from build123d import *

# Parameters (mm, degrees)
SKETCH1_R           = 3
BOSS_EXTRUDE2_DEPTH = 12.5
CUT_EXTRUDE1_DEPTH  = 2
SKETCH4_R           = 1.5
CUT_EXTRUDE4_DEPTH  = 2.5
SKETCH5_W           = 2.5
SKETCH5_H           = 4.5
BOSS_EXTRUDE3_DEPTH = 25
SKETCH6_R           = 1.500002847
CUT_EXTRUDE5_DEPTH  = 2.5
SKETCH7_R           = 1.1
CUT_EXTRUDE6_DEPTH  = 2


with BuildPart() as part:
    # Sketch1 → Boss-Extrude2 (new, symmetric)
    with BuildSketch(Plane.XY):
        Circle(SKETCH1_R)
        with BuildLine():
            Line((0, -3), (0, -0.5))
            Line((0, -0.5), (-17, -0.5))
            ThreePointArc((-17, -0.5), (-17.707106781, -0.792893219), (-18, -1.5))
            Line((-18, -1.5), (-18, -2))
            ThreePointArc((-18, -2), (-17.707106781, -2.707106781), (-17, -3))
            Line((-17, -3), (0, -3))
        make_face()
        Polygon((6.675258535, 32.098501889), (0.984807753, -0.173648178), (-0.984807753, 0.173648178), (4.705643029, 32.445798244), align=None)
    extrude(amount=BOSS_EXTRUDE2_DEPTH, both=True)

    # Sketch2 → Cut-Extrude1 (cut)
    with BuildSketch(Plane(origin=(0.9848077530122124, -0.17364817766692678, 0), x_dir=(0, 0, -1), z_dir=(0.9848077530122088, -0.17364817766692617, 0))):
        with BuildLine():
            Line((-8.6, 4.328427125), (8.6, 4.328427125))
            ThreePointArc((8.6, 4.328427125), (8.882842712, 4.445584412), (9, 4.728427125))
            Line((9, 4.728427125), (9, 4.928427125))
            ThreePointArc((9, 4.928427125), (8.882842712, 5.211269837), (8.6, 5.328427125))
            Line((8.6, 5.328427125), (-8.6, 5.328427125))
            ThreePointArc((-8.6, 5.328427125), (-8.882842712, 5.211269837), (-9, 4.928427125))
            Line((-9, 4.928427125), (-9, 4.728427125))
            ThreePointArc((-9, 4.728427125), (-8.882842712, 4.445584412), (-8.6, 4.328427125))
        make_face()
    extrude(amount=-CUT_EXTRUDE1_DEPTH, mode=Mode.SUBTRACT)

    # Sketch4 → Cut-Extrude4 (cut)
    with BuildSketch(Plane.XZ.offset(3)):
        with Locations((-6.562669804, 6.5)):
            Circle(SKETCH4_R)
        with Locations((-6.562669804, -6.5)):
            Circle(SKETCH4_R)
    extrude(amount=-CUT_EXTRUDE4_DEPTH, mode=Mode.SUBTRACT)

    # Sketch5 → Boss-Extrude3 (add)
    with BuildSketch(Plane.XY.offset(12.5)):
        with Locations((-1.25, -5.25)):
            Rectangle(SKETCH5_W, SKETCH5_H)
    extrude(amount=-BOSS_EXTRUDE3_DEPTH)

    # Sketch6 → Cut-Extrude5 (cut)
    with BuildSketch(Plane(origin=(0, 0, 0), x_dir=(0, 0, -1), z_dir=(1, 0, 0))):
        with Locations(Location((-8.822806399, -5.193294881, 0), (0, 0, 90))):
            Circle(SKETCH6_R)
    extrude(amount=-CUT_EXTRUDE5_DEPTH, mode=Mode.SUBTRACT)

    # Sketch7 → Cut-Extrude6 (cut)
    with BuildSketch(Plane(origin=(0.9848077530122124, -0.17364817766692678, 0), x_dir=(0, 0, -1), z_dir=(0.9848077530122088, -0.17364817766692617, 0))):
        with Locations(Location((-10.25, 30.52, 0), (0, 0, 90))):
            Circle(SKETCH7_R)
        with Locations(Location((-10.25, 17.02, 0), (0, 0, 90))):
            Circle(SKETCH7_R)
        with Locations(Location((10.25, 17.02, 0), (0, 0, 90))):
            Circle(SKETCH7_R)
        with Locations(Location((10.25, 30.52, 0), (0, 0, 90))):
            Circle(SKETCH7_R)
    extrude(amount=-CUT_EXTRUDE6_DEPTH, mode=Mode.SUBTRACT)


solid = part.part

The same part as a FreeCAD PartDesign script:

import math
import FreeCAD as App
import Part
import Sketcher
Q = App.Units.Quantity

doc = App.newDocument("Part")
body = doc.addObject("PartDesign::Body", "Body")

# Sketch on XY plane
sketch1 = body.newObject("Sketcher::SketchObject", "Sketch")
sketch1.AttachmentSupport = (doc.getObject("XY_Plane"), [""])
sketch1.MapMode = "FlatFace"
sketch1.addGeometry(Part.ArcOfCircle(Part.Circle(App.Vector(0, 0, 0), App.Vector(0, 0, 1), 3), math.radians(99), math.radians(190)), False)
sketch1.addGeometry(Part.LineSegment(App.Vector(-3, -0.5, 0), App.Vector(-17, -0.5, 0)), False)
sketch1.addGeometry(Part.ArcOfCircle(Part.Circle(App.Vector(-17, -1.5, 0), App.Vector(0, 0, 1), 1), math.radians(90), math.radians(180)), False)
sketch1.addGeometry(Part.LineSegment(App.Vector(-18, -1.5, 0), App.Vector(-18, -2, 0)), False)
sketch1.addGeometry(Part.ArcOfCircle(Part.Circle(App.Vector(-17, -2, 0), App.Vector(0, 0, 1), 1), math.radians(-180), math.radians(-90)), False)
sketch1.addGeometry(Part.LineSegment(App.Vector(-17, -3, 0), App.Vector(0, -3, 0)), False)
sketch1.addGeometry(Part.ArcOfCircle(Part.Circle(App.Vector(0, 0, 0), App.Vector(0, 0, 1), 3), math.radians(-90), math.radians(61)), False)
sketch1.addGeometry(Part.LineSegment(App.Vector(1.5, 2.6, 0), App.Vector(6.7, 32.1, 0)), False)
sketch1.addGeometry(Part.LineSegment(App.Vector(6.7, 32.1, 0), App.Vector(4.7, 32.4, 0)), False)
sketch1.addGeometry(Part.LineSegment(App.Vector(4.7, 32.4, 0), App.Vector(-0.5, 3, 0)), False)
sketch1.addConstraint(Sketcher.Constraint("Coincident", 0, 2, 1, 1))
sketch1.addConstraint(Sketcher.Constraint("Tangent", 1, 2, 2, 1))
sketch1.addConstraint(Sketcher.Constraint("Tangent", 2, 2, 3, 1))
sketch1.addConstraint(Sketcher.Constraint("Tangent", 3, 2, 4, 1))
sketch1.addConstraint(Sketcher.Constraint("Tangent", 4, 2, 5, 1))
sketch1.addConstraint(Sketcher.Constraint("Tangent", 5, 2, 6, 1))
sketch1.addConstraint(Sketcher.Constraint("Coincident", 6, 2, 7, 1))
sketch1.addConstraint(Sketcher.Constraint("Coincident", 7, 2, 8, 1))
sketch1.addConstraint(Sketcher.Constraint("Coincident", 8, 2, 9, 1))
sketch1.addConstraint(Sketcher.Constraint("Coincident", 9, 2, 0, 1))
sketch1.addConstraint(Sketcher.Constraint("Horizontal", 1))
sketch1.addConstraint(Sketcher.Constraint("Vertical", 3))
sketch1.addConstraint(Sketcher.Constraint("Horizontal", 5))
sketch1.addConstraint(Sketcher.Constraint("Coincident", 0, 3, -1, 1))
sketch1.addConstraint(Sketcher.Constraint("Coincident", 6, 3, -1, 1))
sketch1.addConstraint(Sketcher.Constraint("Equal", 2, 4))
sketch1.addConstraint(Sketcher.Constraint("Equal", 0, 6))
sketch1.addConstraint(Sketcher.Constraint("Perpendicular", 7, 8))
sketch1.addConstraint(Sketcher.Constraint("Perpendicular", 8, 9))
sketch1.addConstraint(Sketcher.Constraint("Equal", 7, 9))
sketch1.addConstraint(Sketcher.Constraint("Radius", 0, 3.0))
sketch1.addConstraint(Sketcher.Constraint("Radius", 2, 1.0))
sketch1.addConstraint(Sketcher.Constraint("DistanceX", 5, 1, 5, 2, 17.0))
sketch1.addConstraint(Sketcher.Constraint("Angle", 7, Q("80 deg")))
sketch1.addConstraint(Sketcher.Constraint("Distance", 8, 2.0))
sketch1.addConstraint(Sketcher.Constraint("DistanceY", 3, 2, 3, 1, 0.5))
sketch1.addConstraint(Sketcher.Constraint("DistanceY", -1, 1, 7, 2, 32.098502))
pad1 = body.newObject("PartDesign::Pad", "Pad")
pad1.Profile = sketch1
pad1.Length = 25
pad1.Midplane = True

# Sketch on an angled plane
sketch2 = body.newObject("Sketcher::SketchObject", "Sketch001")
sketch2.Placement = App.Placement(App.Vector(0.984808, -0.173648, 0), App.Rotation(App.Vector(0, 0, -1), App.Vector(0.173648178, 0.984807753, 0), App.Vector(0.984807753, -0.173648178, 0), "ZXY"))
sketch2.addGeometry(Part.LineSegment(App.Vector(-8.6, 4.33, 0), App.Vector(8.6, 4.33, 0)), False)
sketch2.addGeometry(Part.ArcOfCircle(Part.Circle(App.Vector(8.6, 4.73, 0), App.Vector(0, 0, 1), 0.4), math.radians(-90), math.radians(0)), False)
sketch2.addGeometry(Part.LineSegment(App.Vector(9, 4.73, 0), App.Vector(9, 4.93, 0)), False)
sketch2.addGeometry(Part.ArcOfCircle(Part.Circle(App.Vector(8.6, 4.93, 0), App.Vector(0, 0, 1), 0.4), math.radians(0), math.radians(90)), False)
sketch2.addGeometry(Part.LineSegment(App.Vector(8.6, 5.33, 0), App.Vector(-8.6, 5.33, 0)), False)
sketch2.addGeometry(Part.ArcOfCircle(Part.Circle(App.Vector(-8.6, 4.93, 0), App.Vector(0, 0, 1), 0.4), math.radians(90), math.radians(180)), False)
sketch2.addGeometry(Part.LineSegment(App.Vector(-9, 4.93, 0), App.Vector(-9, 4.73, 0)), False)
sketch2.addGeometry(Part.ArcOfCircle(Part.Circle(App.Vector(-8.6, 4.73, 0), App.Vector(0, 0, 1), 0.4), math.radians(180), math.radians(270)), False)
sketch2.addConstraint(Sketcher.Constraint("Tangent", 0, 2, 1, 1))
sketch2.addConstraint(Sketcher.Constraint("Tangent", 1, 2, 2, 1))
sketch2.addConstraint(Sketcher.Constraint("Tangent", 2, 2, 3, 1))
sketch2.addConstraint(Sketcher.Constraint("Tangent", 3, 2, 4, 1))
sketch2.addConstraint(Sketcher.Constraint("Tangent", 4, 2, 5, 1))
sketch2.addConstraint(Sketcher.Constraint("Tangent", 5, 2, 6, 1))
sketch2.addConstraint(Sketcher.Constraint("Tangent", 6, 2, 7, 1))
sketch2.addConstraint(Sketcher.Constraint("Tangent", 7, 2, 0, 1))
sketch2.addConstraint(Sketcher.Constraint("Horizontal", 0))
sketch2.addConstraint(Sketcher.Constraint("Vertical", 2))
sketch2.addConstraint(Sketcher.Constraint("Horizontal", 4))
sketch2.addConstraint(Sketcher.Constraint("Vertical", 6))
sketch2.addConstraint(Sketcher.Constraint("Equal", 1, 3))
sketch2.addConstraint(Sketcher.Constraint("Equal", 3, 5))
sketch2.addConstraint(Sketcher.Constraint("Equal", 5, 7))
sketch2.addConstraint(Sketcher.Constraint("Radius", 1, 0.4))
sketch2.addConstraint(Sketcher.Constraint("DistanceX", 0, 1, 0, 2, 17.2))
sketch2.addConstraint(Sketcher.Constraint("DistanceY", 2, 1, 2, 2, 0.2))
sketch2.addConstraint(Sketcher.Constraint("DistanceX", -1, 1, 1, 2, 9.0))
sketch2.addConstraint(Sketcher.Constraint("DistanceY", -1, 1, 1, 3, 4.728427))
pocket1 = body.newObject("PartDesign::Pocket", "Pocket")
pocket1.Profile = sketch2
pocket1.Length = 2

# Sketch on XZ plane
sketch3 = body.newObject("Sketcher::SketchObject", "Sketch002")
sketch3.AttachmentSupport = (doc.getObject("XZ_Plane"), [""])
sketch3.MapMode = "FlatFace"
sketch3.AttachmentOffset = App.Placement(App.Vector(0, 0, 3), App.Rotation())
sketch3.addGeometry(Part.Circle(App.Vector(-6.6, 6.5, 0), App.Vector(0, 0, 1), 1.5), False)
sketch3.addGeometry(Part.Circle(App.Vector(-6.6, -6.5, 0), App.Vector(0, 0, 1), 1.5), False)
sketch3.addConstraint(Sketcher.Constraint("Equal", 0, 1))
sketch3.addConstraint(Sketcher.Constraint("Symmetric", 0, 3, 1, 3, -1))
sketch3.addConstraint(Sketcher.Constraint("Diameter", 0, 3.0))
sketch3.addConstraint(Sketcher.Constraint("DistanceY", 1, 3, 0, 3, 13.0))
sketch3.addConstraint(Sketcher.Constraint("DistanceX", 0, 3, -1, 1, 6.56267))
pocket2 = body.newObject("PartDesign::Pocket", "Pocket001")
pocket2.Profile = sketch3
pocket2.Length = 2.5

# Sketch on XY plane
sketch4 = body.newObject("Sketcher::SketchObject", "Sketch003")
sketch4.AttachmentSupport = (doc.getObject("XY_Plane"), [""])
sketch4.MapMode = "FlatFace"
sketch4.AttachmentOffset = App.Placement(App.Vector(0, 0, 12.5), App.Rotation())
sketch4.addGeometry(Part.LineSegment(App.Vector(-2.5, -3, 0), App.Vector(-2.5, -7.5, 0)), False)
sketch4.addGeometry(Part.LineSegment(App.Vector(-2.5, -7.5, 0), App.Vector(0, -7.5, 0)), False)
sketch4.addGeometry(Part.LineSegment(App.Vector(0, -7.5, 0), App.Vector(0, -3, 0)), False)
sketch4.addGeometry(Part.LineSegment(App.Vector(0, -3, 0), App.Vector(-2.5, -3, 0)), False)
sketch4.addConstraint(Sketcher.Constraint("Coincident", 0, 2, 1, 1))
sketch4.addConstraint(Sketcher.Constraint("Coincident", 1, 2, 2, 1))
sketch4.addConstraint(Sketcher.Constraint("Coincident", 2, 2, 3, 1))
sketch4.addConstraint(Sketcher.Constraint("Coincident", 3, 2, 0, 1))
sketch4.addConstraint(Sketcher.Constraint("Vertical", 0))
sketch4.addConstraint(Sketcher.Constraint("Horizontal", 1))
sketch4.addConstraint(Sketcher.Constraint("Vertical", 2))
sketch4.addConstraint(Sketcher.Constraint("Horizontal", 3))
sketch4.addConstraint(Sketcher.Constraint("PointOnObject", 1, 2, -2))
sketch4.addConstraint(Sketcher.Constraint("DistanceX", 1, 1, 1, 2, 2.5))
sketch4.addConstraint(Sketcher.Constraint("DistanceY", 0, 2, 0, 1, 4.5))
sketch4.addConstraint(Sketcher.Constraint("DistanceY", 2, 2, -1, 1, 3.0))
pad2 = body.newObject("PartDesign::Pad", "Pad001")
pad2.Profile = sketch4
pad2.Length = 25
pad2.Reversed = True

# Sketch on YZ plane
sketch5 = body.newObject("Sketcher::SketchObject", "Sketch004")
sketch5.AttachmentSupport = (doc.getObject("YZ_Plane"), [""])
sketch5.MapMode = "FlatFace"
sketch5.addGeometry(Part.Circle(App.Vector(-5.2, 8.8, 0), App.Vector(0, 0, 1), 1.5), False)
sketch5.addConstraint(Sketcher.Constraint("Diameter", 0, 3.000006))
sketch5.addConstraint(Sketcher.Constraint("DistanceX", 0, 3, -1, 1, 5.193295))
sketch5.addConstraint(Sketcher.Constraint("DistanceY", -1, 1, 0, 3, 8.822806))
pocket3 = body.newObject("PartDesign::Pocket", "Pocket002")
pocket3.Profile = sketch5
pocket3.Length = 2.5

# Sketch on an angled plane
sketch6 = body.newObject("Sketcher::SketchObject", "Sketch005")
sketch6.Placement = App.Placement(App.Vector(0.984808, -0.173648, 0), App.Rotation(App.Vector(0, 0, -1), App.Vector(0.173648178, 0.984807753, 0), App.Vector(0.984807753, -0.173648178, 0), "ZXY"))
sketch6.addGeometry(Part.Circle(App.Vector(-10.2, 30.5, 0), App.Vector(0, 0, 1), 1.1), False)
sketch6.addGeometry(Part.Circle(App.Vector(-10.2, 17, 0), App.Vector(0, 0, 1), 1.1), False)
sketch6.addGeometry(Part.Circle(App.Vector(10.2, 17, 0), App.Vector(0, 0, 1), 1.1), False)
sketch6.addGeometry(Part.Circle(App.Vector(10.2, 30.5, 0), App.Vector(0, 0, 1), 1.1), False)
sketch6.addConstraint(Sketcher.Constraint("Equal", 0, 1))
sketch6.addConstraint(Sketcher.Constraint("Equal", 1, 2))
sketch6.addConstraint(Sketcher.Constraint("Equal", 2, 3))
sketch6.addConstraint(Sketcher.Constraint("Symmetric", 1, 3, 2, 3, -2))
sketch6.addConstraint(Sketcher.Constraint("Symmetric", 0, 3, 3, 3, -2))
sketch6.addConstraint(Sketcher.Constraint("Vertical", 0, 3, 1, 3))
sketch6.addConstraint(Sketcher.Constraint("Diameter", 0, 2.2))
sketch6.addConstraint(Sketcher.Constraint("DistanceY", 1, 3, 0, 3, 13.5))
sketch6.addConstraint(Sketcher.Constraint("DistanceX", 1, 3, 2, 3, 20.5))
sketch6.addConstraint(Sketcher.Constraint("DistanceY", -1, 1, 0, 3, 30.52))
pocket4 = body.newObject("PartDesign::Pocket", "Pocket003")
pocket4.Profile = sketch6
pocket4.Length = 2

doc.recompute()
